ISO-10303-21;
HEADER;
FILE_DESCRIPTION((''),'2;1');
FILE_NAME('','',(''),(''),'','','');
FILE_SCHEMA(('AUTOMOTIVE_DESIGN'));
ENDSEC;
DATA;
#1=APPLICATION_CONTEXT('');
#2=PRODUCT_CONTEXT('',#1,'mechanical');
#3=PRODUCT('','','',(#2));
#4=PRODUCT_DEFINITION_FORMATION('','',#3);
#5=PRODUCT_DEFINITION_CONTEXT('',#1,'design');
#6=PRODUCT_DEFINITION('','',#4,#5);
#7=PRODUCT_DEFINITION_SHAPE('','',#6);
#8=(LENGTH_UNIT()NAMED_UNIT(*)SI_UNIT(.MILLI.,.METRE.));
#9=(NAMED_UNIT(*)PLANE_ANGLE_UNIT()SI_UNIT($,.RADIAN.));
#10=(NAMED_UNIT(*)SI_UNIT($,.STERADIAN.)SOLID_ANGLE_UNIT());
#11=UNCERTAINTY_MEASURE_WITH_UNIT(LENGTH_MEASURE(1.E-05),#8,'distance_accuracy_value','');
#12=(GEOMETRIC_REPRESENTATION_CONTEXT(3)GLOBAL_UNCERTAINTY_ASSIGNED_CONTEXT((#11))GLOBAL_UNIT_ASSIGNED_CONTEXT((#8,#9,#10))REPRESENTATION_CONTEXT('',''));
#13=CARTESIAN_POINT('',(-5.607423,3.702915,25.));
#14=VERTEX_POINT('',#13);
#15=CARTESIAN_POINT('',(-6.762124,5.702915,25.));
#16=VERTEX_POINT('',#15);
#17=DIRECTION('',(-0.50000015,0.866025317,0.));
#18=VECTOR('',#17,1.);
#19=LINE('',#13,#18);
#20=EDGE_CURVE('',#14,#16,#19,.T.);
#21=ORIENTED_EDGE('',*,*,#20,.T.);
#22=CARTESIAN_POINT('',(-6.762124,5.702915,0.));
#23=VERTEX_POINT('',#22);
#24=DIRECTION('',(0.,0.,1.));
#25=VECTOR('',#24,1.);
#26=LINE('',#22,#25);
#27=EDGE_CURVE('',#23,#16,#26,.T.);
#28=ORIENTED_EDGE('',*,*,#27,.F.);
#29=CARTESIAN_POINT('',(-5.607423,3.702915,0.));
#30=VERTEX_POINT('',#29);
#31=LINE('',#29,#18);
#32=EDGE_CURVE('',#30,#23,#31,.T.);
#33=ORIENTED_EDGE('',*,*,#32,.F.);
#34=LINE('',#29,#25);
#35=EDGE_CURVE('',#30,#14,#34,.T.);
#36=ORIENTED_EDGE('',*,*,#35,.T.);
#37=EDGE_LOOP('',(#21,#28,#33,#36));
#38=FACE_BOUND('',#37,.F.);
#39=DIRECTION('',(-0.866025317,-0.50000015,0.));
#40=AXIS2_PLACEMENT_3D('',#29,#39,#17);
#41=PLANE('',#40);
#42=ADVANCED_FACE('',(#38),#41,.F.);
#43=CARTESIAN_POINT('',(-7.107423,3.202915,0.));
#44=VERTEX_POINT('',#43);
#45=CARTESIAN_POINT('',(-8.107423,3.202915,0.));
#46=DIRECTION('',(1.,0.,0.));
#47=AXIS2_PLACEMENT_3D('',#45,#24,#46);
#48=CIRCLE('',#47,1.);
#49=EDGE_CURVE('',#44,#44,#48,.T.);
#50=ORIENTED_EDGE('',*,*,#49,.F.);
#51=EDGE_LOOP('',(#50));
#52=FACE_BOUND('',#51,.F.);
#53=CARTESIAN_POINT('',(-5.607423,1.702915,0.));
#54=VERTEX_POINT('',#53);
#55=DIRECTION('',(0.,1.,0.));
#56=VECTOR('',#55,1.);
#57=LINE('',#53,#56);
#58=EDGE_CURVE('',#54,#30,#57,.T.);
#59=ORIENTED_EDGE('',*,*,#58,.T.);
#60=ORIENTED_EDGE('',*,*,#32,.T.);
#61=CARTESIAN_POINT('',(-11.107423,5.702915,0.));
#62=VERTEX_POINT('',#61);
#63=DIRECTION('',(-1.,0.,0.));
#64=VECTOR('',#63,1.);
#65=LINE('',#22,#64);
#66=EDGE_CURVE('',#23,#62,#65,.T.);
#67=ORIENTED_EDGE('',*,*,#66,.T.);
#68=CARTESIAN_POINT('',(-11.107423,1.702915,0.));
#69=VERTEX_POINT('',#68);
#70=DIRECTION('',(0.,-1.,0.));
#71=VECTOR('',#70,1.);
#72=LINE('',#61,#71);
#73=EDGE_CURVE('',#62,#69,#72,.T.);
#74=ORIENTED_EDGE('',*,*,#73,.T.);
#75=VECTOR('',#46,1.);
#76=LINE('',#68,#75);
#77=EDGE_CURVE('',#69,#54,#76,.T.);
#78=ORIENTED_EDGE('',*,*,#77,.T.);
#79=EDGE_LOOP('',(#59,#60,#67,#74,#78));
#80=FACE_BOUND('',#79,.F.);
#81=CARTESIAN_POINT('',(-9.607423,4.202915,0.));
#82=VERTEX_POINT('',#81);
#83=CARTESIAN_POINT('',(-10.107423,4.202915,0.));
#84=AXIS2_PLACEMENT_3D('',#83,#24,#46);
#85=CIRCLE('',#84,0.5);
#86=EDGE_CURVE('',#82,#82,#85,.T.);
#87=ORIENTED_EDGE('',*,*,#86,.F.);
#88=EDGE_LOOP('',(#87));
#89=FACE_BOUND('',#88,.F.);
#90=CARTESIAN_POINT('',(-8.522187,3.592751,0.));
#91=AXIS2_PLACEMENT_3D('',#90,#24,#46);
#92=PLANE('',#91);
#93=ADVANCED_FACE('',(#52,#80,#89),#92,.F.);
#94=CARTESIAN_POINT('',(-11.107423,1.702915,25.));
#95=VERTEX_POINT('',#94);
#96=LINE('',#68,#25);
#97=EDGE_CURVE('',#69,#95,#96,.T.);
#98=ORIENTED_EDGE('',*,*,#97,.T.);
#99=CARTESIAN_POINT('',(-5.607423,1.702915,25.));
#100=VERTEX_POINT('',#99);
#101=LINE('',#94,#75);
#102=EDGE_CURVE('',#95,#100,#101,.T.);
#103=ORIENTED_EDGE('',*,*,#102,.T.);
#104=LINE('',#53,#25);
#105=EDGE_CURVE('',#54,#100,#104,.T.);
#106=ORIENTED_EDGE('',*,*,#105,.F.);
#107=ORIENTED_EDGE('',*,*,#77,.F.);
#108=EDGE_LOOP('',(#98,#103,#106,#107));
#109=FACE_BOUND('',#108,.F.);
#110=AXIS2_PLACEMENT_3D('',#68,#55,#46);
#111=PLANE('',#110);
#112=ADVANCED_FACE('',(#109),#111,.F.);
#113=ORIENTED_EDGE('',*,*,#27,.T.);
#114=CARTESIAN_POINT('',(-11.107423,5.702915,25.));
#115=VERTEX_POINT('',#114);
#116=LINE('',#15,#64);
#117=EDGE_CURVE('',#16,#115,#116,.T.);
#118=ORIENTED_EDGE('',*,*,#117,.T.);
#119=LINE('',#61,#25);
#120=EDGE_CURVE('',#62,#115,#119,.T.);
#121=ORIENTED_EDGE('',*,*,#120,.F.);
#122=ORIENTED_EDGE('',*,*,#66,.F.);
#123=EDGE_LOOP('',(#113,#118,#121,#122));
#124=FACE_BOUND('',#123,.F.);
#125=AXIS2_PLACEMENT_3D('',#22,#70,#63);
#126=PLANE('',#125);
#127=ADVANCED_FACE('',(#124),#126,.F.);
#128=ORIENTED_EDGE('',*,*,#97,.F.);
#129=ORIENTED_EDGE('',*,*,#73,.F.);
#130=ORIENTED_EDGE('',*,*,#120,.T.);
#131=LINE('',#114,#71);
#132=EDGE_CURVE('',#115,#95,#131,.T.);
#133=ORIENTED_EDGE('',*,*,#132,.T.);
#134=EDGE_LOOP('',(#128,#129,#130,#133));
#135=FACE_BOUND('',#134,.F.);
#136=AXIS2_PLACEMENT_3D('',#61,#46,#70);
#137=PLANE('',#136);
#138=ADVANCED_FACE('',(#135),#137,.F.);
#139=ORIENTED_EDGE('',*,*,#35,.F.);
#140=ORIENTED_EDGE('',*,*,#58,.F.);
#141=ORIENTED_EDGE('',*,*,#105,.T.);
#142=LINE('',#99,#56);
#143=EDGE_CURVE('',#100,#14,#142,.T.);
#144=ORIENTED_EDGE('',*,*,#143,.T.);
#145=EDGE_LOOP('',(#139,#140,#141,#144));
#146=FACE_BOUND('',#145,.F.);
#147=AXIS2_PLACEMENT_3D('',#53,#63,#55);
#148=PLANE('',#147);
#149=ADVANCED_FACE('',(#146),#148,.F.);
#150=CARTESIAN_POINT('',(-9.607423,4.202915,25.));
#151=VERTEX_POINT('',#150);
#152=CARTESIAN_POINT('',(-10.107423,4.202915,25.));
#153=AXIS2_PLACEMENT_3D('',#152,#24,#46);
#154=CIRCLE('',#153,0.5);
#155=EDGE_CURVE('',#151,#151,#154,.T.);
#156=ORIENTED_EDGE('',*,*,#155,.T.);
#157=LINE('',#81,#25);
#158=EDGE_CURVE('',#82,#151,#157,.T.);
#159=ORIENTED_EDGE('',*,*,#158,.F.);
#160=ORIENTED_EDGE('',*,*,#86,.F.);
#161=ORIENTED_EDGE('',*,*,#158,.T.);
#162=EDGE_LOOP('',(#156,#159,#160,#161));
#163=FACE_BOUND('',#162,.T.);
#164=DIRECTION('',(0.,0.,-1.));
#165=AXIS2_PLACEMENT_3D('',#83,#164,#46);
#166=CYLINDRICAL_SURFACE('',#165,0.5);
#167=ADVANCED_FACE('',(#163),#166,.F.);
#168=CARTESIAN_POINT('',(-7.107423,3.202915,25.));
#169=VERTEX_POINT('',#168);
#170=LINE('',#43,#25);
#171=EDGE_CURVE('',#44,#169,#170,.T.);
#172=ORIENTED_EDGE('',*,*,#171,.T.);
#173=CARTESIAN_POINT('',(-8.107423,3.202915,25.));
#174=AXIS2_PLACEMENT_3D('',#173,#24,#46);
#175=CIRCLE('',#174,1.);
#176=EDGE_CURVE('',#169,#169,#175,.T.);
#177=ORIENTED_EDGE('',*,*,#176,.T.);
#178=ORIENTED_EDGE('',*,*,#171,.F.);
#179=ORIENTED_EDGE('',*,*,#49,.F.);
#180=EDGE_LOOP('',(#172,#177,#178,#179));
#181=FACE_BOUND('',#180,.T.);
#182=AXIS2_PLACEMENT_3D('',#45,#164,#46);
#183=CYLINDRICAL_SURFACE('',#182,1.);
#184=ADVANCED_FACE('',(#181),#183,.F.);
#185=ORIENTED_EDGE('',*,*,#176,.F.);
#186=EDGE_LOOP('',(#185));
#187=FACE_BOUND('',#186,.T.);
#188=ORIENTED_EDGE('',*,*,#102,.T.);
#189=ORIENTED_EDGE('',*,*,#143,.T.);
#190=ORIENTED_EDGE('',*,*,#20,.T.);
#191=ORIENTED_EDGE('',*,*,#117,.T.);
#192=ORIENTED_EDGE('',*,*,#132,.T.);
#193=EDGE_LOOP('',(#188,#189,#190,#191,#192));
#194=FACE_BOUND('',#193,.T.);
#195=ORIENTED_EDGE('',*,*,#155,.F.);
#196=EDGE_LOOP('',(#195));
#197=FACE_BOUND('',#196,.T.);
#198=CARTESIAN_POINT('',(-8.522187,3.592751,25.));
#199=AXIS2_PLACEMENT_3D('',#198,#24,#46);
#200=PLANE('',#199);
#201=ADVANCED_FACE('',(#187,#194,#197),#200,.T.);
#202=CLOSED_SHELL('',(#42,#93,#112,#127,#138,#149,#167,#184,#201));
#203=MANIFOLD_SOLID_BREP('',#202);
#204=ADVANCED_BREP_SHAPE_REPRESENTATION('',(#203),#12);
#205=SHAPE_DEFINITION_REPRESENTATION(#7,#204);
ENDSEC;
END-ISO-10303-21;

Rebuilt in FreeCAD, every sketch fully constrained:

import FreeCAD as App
import Part
import Sketcher
Q = App.Units.Quantity


def add_polygon(sketch, points):
    """Adds a closed chain of lines whose ends are joined by coincident constraints."""
    first, n = sketch.GeometryCount, len(points)
    for a, b in zip(points, points[1:] + points[:1]):
        sketch.addGeometry(Part.LineSegment(App.Vector(*a, 0), App.Vector(*b, 0)), False)
    for i in range(n):
        sketch.addConstraint(Sketcher.Constraint("Coincident", first + i, 2, first + (i + 1) % n, 1))

doc = App.newDocument("Part")
params = doc.addObject("Spreadsheet::Sheet", "Params")
for row, (alias, value) in enumerate([
    ("sketch1_diameter", "2 mm"),
    ("sketch1_diameter2", "1 mm"),
    ("sketch1_height", "4 mm"),
    ("sketch1_height2", "2 mm"),
    ("sketch1_width", "5.5 mm"),
    ("pad1_length", "25 mm"),
    ("sketch2_diameter", "2 mm"),
    ("sketch2_diameter2", "1 mm"),
    ("sketch2_height", "4 mm"),
    ("sketch2_height2", "2 mm"),
    ("sketch2_width", "5.5 mm"),
    ("pad2_length", "25 mm"),
], start=1):
    params.set(f"A{row}", alias)
    params.set(f"B{row}", "=" + value)
    params.setAlias(f"B{row}", alias)

body = doc.addObject("PartDesign::Body", "Body")

# Sketch on XY plane
sketch1 = body.newObject("Sketcher::SketchObject", "Sketch")
sketch1.AttachmentSupport = (doc.getObject("XY_Plane"), [""])
sketch1.MapMode = "FlatFace"
add_polygon(sketch1, [(-11.1, 5.7), (-11.1, 1.7), (-5.6, 1.7), (-5.6, 3.7), (-6.8, 5.7)])  # lines 0-4
sketch1.addGeometry(Part.Circle(App.Vector(-8.1, 3.2, 0), App.Vector(0, 0, 1), 1), False)  # 5
sketch1.addGeometry(Part.Circle(App.Vector(-10.1, 4.2, 0), App.Vector(0, 0, 1), 0.5), False)  # 6
sketch1.addConstraint([
    Sketcher.Constraint("Vertical", 0),
    Sketcher.Constraint("Horizontal", 1),
    Sketcher.Constraint("Vertical", 2),
    Sketcher.Constraint("Horizontal", 4),
    Sketcher.Constraint("Diameter", 5, 2.0),
    Sketcher.Constraint("Diameter", 6, 1.0),
    Sketcher.Constraint("DistanceY", 0, 2, 0, 1, 4.0),
    Sketcher.Constraint("DistanceY", 2, 1, 2, 2, 2.0),
    Sketcher.Constraint("Angle", 3, Q("120.00001 deg")),
    Sketcher.Constraint("DistanceX", 1, 1, 1, 2, 5.5),
    Sketcher.Constraint("DistanceX", 6, 3, 5, 3, 2.0),
    Sketcher.Constraint("DistanceY", 5, 3, 6, 3, 1.0),
    Sketcher.Constraint("DistanceX", 0, 2, 6, 3, 1.0),
    Sketcher.Constraint("DistanceY", 0, 2, 6, 3, 2.5),
    Sketcher.Constraint("DistanceX", 5, 3, -1, 1, 8.107423),
    Sketcher.Constraint("DistanceY", -1, 1, 5, 3, 3.202915),
])
sketch1.setExpression("Constraints[9]", "Params.sketch1_diameter")
sketch1.setExpression("Constraints[10]", "Params.sketch1_diameter2")
sketch1.setExpression("Constraints[11]", "Params.sketch1_height")
sketch1.setExpression("Constraints[12]", "Params.sketch1_height2")
sketch1.setExpression("Constraints[14]", "Params.sketch1_width")
pad1 = body.newObject("PartDesign::Pad", "Pad")
pad1.Profile = sketch1
pad1.setExpression("Length", "Params.pad1_length")

# Sketch on XY plane
sketch2 = body.newObject("Sketcher::SketchObject", "Sketch001")
sketch2.AttachmentSupport = (doc.getObject("XY_Plane"), [""])
sketch2.MapMode = "FlatFace"
add_polygon(sketch2, [(-11.1, 5.7), (-11.1, 1.7), (-5.6, 1.7), (-5.6, 3.7), (-6.8, 5.7)])  # lines 0-4
sketch2.addGeometry(Part.Circle(App.Vector(-8.1, 3.2, 0), App.Vector(0, 0, 1), 1), False)  # 5
sketch2.addGeometry(Part.Circle(App.Vector(-10.1, 4.2, 0), App.Vector(0, 0, 1), 0.5), False)  # 6
sketch2.addConstraint([
    Sketcher.Constraint("Vertical", 0),
    Sketcher.Constraint("Horizontal", 1),
    Sketcher.Constraint("Vertical", 2),
    Sketcher.Constraint("Horizontal", 4),
    Sketcher.Constraint("Diameter", 5, 2.0),
    Sketcher.Constraint("Diameter", 6, 1.0),
    Sketcher.Constraint("DistanceY", 0, 2, 0, 1, 4.0),
    Sketcher.Constraint("DistanceY", 2, 1, 2, 2, 2.0),
    Sketcher.Constraint("Angle", 3, Q("120.00001 deg")),
    Sketcher.Constraint("DistanceX", 1, 1, 1, 2, 5.5),
    Sketcher.Constraint("DistanceX", 6, 3, 5, 3, 2.0),
    Sketcher.Constraint("DistanceY", 5, 3, 6, 3, 1.0),
    Sketcher.Constraint("DistanceX", 0, 2, 6, 3, 1.0),
    Sketcher.Constraint("DistanceY", 0, 2, 6, 3, 2.5),
    Sketcher.Constraint("DistanceX", 5, 3, -1, 1, 8.107423),
    Sketcher.Constraint("DistanceY", -1, 1, 5, 3, 3.202915),
])
sketch2.setExpression("Constraints[9]", "Params.sketch2_diameter")
sketch2.setExpression("Constraints[10]", "Params.sketch2_diameter2")
sketch2.setExpression("Constraints[11]", "Params.sketch2_height")
sketch2.setExpression("Constraints[12]", "Params.sketch2_height2")
sketch2.setExpression("Constraints[14]", "Params.sketch2_width")
pad2 = body.newObject("PartDesign::Pad", "Pad001")
pad2.Profile = sketch2
pad2.setExpression("Length", "Params.pad2_length")

doc.recompute()
